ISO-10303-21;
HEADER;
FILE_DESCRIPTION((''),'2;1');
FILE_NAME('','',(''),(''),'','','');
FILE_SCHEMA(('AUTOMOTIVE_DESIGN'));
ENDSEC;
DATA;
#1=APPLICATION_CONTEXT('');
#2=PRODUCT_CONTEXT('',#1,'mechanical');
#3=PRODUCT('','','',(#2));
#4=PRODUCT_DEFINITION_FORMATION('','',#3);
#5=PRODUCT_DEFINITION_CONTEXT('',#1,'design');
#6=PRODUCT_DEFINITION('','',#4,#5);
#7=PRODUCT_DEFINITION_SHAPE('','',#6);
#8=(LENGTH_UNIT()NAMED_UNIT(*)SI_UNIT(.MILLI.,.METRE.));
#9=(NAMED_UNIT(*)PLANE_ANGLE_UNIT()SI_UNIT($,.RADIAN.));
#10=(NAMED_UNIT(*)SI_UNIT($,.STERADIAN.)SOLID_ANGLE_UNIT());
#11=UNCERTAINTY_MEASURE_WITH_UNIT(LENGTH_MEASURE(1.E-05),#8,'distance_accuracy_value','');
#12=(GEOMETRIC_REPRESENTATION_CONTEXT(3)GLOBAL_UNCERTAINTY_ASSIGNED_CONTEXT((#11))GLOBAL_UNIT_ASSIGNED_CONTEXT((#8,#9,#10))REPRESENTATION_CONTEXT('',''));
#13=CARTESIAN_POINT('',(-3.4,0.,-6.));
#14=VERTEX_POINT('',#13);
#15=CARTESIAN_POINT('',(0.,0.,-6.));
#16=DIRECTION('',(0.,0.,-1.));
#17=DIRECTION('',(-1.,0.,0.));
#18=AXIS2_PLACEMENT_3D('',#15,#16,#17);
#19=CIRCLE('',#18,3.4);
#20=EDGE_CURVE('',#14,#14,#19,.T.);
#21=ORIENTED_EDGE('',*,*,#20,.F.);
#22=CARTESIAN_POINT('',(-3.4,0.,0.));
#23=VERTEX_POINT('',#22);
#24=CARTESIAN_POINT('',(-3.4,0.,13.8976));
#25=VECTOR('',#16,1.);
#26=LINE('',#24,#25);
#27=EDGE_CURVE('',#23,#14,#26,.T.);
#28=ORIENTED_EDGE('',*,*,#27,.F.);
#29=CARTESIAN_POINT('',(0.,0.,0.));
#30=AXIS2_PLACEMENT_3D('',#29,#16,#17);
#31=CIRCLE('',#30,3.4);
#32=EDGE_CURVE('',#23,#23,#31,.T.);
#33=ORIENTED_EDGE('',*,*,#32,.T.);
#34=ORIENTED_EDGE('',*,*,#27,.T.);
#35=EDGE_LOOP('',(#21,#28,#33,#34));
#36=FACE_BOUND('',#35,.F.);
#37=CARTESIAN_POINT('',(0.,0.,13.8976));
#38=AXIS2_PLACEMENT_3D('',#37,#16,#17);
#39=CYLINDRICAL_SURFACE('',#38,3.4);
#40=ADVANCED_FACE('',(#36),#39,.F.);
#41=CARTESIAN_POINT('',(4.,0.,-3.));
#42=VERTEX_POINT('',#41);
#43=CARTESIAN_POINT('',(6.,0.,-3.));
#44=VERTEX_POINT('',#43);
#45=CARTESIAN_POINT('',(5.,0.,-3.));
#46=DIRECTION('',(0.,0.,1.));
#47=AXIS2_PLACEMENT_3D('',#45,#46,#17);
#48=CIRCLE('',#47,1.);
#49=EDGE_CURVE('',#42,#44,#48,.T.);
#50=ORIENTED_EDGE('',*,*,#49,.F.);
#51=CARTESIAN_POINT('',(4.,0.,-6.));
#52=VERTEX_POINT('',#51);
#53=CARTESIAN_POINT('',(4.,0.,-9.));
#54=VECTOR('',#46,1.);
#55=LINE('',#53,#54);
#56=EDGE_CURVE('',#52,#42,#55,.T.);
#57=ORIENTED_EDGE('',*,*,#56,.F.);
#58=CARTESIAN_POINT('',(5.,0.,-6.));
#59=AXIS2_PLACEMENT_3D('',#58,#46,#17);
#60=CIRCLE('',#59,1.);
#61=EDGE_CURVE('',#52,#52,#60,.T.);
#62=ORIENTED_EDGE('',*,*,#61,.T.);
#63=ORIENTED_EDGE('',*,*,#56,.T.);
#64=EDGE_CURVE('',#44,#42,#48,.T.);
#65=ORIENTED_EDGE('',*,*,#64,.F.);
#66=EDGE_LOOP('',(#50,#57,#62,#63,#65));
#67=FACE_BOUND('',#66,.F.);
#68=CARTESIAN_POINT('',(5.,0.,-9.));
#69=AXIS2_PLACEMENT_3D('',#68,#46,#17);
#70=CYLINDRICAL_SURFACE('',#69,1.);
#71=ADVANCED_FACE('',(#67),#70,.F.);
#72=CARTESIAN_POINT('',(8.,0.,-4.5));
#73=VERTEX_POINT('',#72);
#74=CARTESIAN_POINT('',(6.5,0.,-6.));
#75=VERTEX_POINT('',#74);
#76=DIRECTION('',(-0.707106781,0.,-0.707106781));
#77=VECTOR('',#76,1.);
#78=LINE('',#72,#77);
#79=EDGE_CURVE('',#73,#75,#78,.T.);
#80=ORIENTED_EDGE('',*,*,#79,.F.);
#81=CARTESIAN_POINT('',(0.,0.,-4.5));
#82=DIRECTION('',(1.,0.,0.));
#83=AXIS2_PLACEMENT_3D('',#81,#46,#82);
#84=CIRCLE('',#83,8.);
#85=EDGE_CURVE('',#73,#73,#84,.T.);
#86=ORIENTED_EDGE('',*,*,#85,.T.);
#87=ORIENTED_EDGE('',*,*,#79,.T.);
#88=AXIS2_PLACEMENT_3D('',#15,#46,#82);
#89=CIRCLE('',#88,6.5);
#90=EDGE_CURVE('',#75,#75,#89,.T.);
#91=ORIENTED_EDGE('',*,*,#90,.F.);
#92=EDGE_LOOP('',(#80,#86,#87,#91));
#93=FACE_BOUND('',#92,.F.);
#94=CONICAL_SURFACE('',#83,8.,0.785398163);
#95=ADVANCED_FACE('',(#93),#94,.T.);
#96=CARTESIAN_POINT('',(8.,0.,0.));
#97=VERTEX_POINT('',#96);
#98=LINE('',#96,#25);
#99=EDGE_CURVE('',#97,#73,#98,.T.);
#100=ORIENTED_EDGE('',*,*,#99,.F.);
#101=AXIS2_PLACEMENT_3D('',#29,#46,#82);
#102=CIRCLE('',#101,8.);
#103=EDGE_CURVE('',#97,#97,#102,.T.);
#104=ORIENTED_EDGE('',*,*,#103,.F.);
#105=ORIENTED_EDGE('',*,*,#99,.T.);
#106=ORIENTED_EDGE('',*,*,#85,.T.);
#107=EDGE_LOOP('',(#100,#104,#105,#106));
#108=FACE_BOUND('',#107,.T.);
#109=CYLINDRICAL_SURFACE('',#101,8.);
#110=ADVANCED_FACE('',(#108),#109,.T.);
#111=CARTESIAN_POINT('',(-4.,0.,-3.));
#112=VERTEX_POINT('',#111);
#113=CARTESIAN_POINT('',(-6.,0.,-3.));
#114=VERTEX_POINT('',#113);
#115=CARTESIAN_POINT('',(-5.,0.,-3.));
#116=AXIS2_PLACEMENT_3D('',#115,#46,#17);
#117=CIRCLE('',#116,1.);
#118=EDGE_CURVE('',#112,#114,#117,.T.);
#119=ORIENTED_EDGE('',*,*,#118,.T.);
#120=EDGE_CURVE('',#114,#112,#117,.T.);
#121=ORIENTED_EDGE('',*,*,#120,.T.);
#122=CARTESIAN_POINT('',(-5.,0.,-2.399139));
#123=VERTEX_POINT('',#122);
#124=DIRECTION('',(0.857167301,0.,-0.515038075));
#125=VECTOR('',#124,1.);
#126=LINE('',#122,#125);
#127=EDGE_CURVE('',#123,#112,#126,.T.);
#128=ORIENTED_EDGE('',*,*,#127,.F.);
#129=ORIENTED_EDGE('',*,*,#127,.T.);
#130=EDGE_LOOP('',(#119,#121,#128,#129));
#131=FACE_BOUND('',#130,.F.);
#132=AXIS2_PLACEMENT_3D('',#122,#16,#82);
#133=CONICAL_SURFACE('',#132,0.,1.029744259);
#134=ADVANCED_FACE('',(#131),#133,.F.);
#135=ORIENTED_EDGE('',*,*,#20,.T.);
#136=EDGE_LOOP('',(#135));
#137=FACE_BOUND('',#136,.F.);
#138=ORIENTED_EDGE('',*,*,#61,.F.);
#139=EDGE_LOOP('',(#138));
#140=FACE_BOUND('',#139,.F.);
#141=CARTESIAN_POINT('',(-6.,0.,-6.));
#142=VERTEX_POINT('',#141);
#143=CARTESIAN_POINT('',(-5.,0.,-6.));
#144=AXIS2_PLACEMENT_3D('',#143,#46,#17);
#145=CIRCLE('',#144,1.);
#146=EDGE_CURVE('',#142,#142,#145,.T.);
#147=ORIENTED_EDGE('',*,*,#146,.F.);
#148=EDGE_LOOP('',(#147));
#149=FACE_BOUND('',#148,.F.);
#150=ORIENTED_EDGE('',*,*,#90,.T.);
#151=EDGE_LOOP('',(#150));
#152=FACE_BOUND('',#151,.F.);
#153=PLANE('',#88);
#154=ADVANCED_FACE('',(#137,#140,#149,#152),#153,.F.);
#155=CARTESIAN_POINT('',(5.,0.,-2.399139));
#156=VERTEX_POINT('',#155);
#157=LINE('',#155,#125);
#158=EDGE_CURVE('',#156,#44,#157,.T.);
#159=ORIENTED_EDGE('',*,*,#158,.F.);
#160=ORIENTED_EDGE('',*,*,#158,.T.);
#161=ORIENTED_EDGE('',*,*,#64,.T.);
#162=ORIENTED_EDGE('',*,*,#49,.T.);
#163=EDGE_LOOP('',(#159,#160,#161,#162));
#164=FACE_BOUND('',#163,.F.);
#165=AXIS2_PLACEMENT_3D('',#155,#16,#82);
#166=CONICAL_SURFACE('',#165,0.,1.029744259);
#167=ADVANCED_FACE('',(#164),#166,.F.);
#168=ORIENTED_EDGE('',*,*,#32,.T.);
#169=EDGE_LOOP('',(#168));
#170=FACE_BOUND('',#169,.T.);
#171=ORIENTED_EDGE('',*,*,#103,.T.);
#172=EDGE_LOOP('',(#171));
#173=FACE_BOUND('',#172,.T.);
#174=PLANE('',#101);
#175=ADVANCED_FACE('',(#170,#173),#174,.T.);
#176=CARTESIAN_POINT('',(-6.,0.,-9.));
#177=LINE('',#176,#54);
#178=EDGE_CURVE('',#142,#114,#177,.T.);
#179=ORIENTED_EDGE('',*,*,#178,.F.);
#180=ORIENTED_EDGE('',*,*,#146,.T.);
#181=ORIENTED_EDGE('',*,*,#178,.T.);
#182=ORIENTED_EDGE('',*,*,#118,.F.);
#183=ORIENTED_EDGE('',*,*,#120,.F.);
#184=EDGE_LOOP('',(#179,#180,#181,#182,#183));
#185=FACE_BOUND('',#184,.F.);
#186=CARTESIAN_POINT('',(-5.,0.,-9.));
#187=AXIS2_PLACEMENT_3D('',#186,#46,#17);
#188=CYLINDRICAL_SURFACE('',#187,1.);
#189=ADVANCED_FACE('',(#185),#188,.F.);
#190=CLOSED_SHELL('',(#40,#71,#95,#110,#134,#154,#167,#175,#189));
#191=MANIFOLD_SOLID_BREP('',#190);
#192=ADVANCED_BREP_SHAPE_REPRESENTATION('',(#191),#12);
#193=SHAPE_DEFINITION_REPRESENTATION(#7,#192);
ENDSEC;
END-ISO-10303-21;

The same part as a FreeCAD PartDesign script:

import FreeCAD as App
import Part
import Sketcher
from FreeCAD import Vector


def edges_at(feature, points):
    """Names of the edges that pass closest to the given points."""
    edges = feature.Shape.Edges
    near = lambda p: min(range(len(edges)), key=lambda i: edges[i].distToShape(Part.Vertex(*p))[0])
    return sorted({f"Edge{near(p) + 1}" for p in points})

doc = App.newDocument("Part")
body = doc.addObject("PartDesign::Body", "Body")

# Sketch on XY plane
sketch1 = body.newObject("Sketcher::SketchObject", "Sketch")
sketch1.AttachmentSupport = (doc.getObject("XY_Plane"), [""])
sketch1.MapMode = "FlatFace"
sketch1.addGeometry(Part.Circle(Vector(0, 0, 0), Vector(0, 0, 1), 8), False)
sketch1.addConstraint([
    Sketcher.Constraint("Coincident", 0, 3, -1, 1),
    Sketcher.Constraint("Diameter", 0, 16.0),
])
pad1 = body.newObject("PartDesign::Pad", "Pad")
pad1.Profile = sketch1
pad1.Length = 6
pad1.Reversed = True

# Sketch on XY plane
sketch2 = body.newObject("Sketcher::SketchObject", "Sketch001")
sketch2.AttachmentSupport = (doc.getObject("XY_Plane"), [""])
sketch2.MapMode = "FlatFace"
sketch2.addGeometry(Part.Circle(Vector(0, 0, 0), Vector(0, 0, 1), 3.4), False)
sketch2.addConstraint([
    Sketcher.Constraint("Coincident", 0, 3, -1, 1),
    Sketcher.Constraint("Diameter", 0, 6.8),
])
doc.recompute()
hole = body.newObject("PartDesign::Hole", "Hole")
hole.Profile = sketch2
hole.ThreadType = "None"
hole.Diameter = 6.8
hole.DepthType = "Dimension"
hole.Depth = 13.8976
hole.DrillPoint = "Angled"
hole.DrillPointAngle = 118
doc.recompute()

chamfer = body.newObject("PartDesign::Chamfer", "Chamfer")
chamfer.Base = (hole, edges_at(hole, [(-8, 0, -6)]))
chamfer.Size = 1.5

# Sketch on XY plane
sketch3 = body.newObject("Sketcher::SketchObject", "Sketch002")
sketch3.AttachmentSupport = (doc.getObject("XY_Plane"), [""])
sketch3.MapMode = "FlatFace"
sketch3.AttachmentOffset = App.Placement(Vector(0, 0, -6), App.Rotation())
sketch3.addGeometry([
    Part.Circle(Vector(-5, 0, 0), Vector(0, 0, 1), 1),
    Part.Circle(Vector(5, 0, 0), Vector(0, 0, 1), 1),
], False)
sketch3.addConstraint([
    Sketcher.Constraint("Equal", 0, 1),
    Sketcher.Constraint("Symmetric", 0, 3, 1, 3, -1, 1),
    Sketcher.Constraint("PointOnObject", 0, 3, -1),
    Sketcher.Constraint("Diameter", 0, 2.0),
    Sketcher.Constraint("DistanceX", 0, 3, -1, 1, 5.0),
])
doc.recompute()
hole2 = body.newObject("PartDesign::Hole", "Hole001")
hole2.Profile = sketch3
hole2.ThreadType = "None"
hole2.Diameter = 2
hole2.DepthType = "Dimension"
hole2.Depth = 3
hole2.DrillPoint = "Angled"
hole2.DrillPointAngle = 118
hole2.Reversed = True

doc.recompute()
